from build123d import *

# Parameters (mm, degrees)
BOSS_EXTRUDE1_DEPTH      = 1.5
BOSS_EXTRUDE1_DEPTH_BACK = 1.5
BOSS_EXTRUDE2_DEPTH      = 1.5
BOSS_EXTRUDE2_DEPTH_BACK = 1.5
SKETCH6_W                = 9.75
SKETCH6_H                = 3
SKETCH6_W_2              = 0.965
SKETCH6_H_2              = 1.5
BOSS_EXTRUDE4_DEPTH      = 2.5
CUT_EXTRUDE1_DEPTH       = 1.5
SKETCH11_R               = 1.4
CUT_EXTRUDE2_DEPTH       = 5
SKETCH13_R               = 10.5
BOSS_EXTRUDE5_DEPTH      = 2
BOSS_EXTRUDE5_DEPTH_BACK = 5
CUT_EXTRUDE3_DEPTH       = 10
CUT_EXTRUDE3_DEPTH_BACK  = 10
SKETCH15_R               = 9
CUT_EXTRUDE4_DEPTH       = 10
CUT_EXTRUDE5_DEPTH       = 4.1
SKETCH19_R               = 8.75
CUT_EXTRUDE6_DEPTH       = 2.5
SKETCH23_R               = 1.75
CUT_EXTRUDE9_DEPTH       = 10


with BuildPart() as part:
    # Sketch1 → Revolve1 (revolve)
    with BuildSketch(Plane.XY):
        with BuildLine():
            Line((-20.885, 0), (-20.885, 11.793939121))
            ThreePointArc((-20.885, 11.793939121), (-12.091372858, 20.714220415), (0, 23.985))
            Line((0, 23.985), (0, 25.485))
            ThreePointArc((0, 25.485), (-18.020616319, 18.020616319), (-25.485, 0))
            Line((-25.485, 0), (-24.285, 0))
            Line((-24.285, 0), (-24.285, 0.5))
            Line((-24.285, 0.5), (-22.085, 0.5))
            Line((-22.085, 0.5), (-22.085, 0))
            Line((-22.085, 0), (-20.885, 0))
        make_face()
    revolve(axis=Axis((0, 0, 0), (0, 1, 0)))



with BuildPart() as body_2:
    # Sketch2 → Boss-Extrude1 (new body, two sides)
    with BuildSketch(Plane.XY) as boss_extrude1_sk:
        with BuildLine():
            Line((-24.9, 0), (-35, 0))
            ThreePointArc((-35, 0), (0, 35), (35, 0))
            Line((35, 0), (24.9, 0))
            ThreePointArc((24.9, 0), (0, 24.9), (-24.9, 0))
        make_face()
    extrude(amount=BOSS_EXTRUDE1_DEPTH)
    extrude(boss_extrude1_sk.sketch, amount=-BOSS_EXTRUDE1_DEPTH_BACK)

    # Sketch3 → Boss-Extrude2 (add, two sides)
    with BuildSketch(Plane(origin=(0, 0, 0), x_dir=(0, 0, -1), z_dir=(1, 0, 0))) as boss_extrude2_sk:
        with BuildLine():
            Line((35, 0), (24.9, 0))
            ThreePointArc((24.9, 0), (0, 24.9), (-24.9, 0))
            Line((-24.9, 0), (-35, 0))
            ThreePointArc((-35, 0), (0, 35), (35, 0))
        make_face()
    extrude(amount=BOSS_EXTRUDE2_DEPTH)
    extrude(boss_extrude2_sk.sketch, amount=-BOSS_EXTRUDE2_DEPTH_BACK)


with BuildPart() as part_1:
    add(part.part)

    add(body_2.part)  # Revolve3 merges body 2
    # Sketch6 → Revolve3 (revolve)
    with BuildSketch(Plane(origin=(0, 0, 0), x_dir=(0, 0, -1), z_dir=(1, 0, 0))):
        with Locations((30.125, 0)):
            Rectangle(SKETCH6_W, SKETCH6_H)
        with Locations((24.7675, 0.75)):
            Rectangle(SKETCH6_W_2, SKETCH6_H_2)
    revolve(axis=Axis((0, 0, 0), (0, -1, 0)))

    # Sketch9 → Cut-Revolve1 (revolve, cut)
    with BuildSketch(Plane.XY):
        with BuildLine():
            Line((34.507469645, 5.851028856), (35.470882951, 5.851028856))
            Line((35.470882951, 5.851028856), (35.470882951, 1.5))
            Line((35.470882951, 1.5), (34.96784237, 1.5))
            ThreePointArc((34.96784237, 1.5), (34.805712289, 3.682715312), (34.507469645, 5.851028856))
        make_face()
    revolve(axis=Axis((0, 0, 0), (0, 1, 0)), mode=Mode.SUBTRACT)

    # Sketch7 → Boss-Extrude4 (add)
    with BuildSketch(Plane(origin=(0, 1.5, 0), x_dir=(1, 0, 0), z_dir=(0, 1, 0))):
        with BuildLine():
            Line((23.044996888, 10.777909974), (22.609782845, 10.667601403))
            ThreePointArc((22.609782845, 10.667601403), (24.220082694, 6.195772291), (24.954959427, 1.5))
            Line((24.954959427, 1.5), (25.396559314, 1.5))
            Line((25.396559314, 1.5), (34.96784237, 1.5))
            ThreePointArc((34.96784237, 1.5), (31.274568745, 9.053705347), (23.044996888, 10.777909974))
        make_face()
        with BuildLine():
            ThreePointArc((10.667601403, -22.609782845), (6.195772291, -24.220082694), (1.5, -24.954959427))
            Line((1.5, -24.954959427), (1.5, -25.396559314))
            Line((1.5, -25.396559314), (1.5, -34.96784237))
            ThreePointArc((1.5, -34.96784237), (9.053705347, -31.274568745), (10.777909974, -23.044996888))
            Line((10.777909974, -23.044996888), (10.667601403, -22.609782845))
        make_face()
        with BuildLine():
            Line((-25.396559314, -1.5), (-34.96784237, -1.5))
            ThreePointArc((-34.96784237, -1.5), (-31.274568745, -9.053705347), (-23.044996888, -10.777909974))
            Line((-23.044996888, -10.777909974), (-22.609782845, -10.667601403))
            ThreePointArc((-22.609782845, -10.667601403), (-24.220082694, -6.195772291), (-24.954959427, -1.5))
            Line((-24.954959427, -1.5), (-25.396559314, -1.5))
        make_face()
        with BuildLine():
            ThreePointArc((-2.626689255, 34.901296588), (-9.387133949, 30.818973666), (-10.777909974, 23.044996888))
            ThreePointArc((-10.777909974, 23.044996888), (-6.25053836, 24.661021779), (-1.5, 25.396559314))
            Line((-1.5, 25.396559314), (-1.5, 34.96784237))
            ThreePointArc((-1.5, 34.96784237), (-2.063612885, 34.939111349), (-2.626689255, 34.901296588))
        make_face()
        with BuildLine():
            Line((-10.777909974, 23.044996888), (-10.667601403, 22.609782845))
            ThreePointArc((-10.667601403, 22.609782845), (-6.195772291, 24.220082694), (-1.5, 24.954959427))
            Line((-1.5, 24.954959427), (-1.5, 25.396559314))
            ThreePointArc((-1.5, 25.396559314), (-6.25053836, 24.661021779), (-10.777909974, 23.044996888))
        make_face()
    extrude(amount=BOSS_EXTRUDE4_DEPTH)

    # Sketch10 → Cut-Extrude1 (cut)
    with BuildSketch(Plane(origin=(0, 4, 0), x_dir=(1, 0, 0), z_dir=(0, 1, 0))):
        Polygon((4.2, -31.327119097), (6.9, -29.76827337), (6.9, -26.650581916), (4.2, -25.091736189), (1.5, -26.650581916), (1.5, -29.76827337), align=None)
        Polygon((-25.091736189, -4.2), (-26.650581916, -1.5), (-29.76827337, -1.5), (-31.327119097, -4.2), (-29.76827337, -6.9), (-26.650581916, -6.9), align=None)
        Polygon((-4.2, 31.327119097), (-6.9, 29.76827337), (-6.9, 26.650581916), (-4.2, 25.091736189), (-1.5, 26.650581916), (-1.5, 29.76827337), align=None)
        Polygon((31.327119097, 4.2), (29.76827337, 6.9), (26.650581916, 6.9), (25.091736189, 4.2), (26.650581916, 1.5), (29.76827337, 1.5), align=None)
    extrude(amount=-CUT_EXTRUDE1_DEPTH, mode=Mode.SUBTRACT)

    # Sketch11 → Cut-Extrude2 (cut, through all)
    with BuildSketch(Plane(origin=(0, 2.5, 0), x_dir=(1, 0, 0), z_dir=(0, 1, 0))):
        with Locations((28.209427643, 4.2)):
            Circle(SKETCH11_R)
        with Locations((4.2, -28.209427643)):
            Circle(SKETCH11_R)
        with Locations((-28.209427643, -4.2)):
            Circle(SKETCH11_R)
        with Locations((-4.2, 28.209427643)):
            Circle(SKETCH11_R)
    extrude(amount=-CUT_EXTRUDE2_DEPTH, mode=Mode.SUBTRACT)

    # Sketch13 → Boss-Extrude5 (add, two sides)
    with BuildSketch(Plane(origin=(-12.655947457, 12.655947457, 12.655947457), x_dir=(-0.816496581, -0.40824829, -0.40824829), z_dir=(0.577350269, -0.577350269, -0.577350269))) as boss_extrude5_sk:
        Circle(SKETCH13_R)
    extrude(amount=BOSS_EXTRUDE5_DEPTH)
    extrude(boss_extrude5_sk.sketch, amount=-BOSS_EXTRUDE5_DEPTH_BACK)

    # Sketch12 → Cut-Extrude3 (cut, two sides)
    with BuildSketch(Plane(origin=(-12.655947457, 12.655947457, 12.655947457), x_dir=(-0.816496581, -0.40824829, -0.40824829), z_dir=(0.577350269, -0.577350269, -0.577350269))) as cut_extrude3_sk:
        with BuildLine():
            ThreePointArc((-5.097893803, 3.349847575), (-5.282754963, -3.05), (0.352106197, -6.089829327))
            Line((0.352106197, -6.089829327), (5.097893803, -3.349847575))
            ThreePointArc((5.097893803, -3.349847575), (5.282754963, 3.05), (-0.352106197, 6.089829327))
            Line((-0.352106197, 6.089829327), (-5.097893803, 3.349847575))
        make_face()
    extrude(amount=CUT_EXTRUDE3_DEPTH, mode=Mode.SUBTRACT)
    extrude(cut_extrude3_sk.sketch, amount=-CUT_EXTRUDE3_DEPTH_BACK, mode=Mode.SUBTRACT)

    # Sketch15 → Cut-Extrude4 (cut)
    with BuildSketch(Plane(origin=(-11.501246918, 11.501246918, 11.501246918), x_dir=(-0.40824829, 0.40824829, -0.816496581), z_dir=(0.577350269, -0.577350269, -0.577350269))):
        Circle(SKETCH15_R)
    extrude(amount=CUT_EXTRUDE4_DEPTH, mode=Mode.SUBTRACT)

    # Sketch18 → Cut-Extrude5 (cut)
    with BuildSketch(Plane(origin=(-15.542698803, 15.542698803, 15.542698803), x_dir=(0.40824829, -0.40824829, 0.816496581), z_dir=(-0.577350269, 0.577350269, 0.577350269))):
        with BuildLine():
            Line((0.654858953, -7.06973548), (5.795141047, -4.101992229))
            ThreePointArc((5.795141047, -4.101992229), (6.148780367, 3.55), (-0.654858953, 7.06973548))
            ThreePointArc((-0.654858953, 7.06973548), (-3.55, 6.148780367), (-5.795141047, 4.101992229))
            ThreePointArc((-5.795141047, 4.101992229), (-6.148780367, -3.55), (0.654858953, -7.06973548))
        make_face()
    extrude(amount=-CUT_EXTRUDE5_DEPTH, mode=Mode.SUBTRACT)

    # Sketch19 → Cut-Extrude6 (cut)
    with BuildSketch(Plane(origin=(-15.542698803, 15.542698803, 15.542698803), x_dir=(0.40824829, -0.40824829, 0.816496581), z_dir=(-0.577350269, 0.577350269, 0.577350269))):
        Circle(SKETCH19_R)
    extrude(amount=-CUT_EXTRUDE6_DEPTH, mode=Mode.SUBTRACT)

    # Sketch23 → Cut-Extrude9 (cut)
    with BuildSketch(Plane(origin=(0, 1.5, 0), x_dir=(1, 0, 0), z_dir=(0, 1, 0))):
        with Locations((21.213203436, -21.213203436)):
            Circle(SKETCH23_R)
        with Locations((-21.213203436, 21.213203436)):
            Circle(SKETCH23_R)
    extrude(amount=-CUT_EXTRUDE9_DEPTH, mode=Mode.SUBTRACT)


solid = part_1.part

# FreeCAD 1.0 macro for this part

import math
import FreeCAD as App
import Part
import Sketcher
Q = App.Units.Quantity

doc = App.newDocument("Part")
params = doc.addObject("Spreadsheet::Sheet", "Params")
for row, (alias, value) in enumerate([
    ("sketch1_width", "1.2 mm"),
    ("sketch1_width2", "2.2 mm"),
    ("sketch1_height", "1.5 mm"),
    ("sketch1_height2", "0.5 mm"),
    ("revolution_angle", "360 deg"),
    ("sketch2_radius", "35 mm"),
    ("sketch2_radius2", "24.9 mm"),
    ("pad1_length", "1.5 mm"),
    ("pad1_length2", "1.5 mm"),
    ("sketch3_radius", "35 mm"),
    ("sketch3_radius2", "24.9 mm"),
    ("pad2_length", "1.5 mm"),
    ("pad2_length2", "1.5 mm"),
    ("sketch4_width", "3 mm"),
    ("sketch4_height", "9.75 mm"),
    ("revolution2_angle", "360 deg"),
    ("sketch5_radius", "35 mm"),
    ("groove_angle", "360 deg"),
    ("sketch6_radius", "25 mm"),
    ("sketch6_radius2", "34.999999 mm"),
    ("pad3_length", "2.5 mm"),
    ("pocket1_length", "1.5 mm"),
    ("sketch8_diameter", "2.8 mm"),
    ("sketch9_diameter", "21 mm"),
    ("pad4_length", "2 mm"),
    ("pad4_length2", "5 mm"),
    ("sketch10_radius", "6.1 mm"),
    ("sketch11_diameter", "18 mm"),
    ("pocket4_length", "10 mm"),
    ("sketch12_radius", "7.1 mm"),
    ("pocket5_length", "4.1 mm"),
    ("sketch13_diameter", "17.5 mm"),
    ("pocket6_length", "2.5 mm"),
    ("sketch14_diameter", "3.5 mm"),
    ("pocket7_length", "10 mm"),
], start=1):
    params.set(f"A{row}", alias)
    params.set(f"B{row}", "=" + value)
    params.setAlias(f"B{row}", alias)

body = doc.addObject("PartDesign::Body", "Body")

# Sketch on XY plane
sketch1 = body.newObject("Sketcher::SketchObject", "Sketch")
sketch1.AttachmentSupport = (doc.getObject("XY_Plane"), [""])
sketch1.MapMode = "FlatFace"
sketch1.addGeometry([
    Part.LineSegment(App.Vector(-20.885, 0, 0), App.Vector(-20.885, 11.793939, 0)),  # 0
    Part.ArcOfCircle(Part.Circle(App.Vector(0, 0, 0), App.Vector(0, 0, 1), 23.985), math.radians(90), math.radians(150.546209)),  # 1
    Part.LineSegment(App.Vector(0, 23.985, 0), App.Vector(0, 25.485, 0)),  # 2
    Part.ArcOfCircle(Part.Circle(App.Vector(0, 0, 0), App.Vector(0, 0, 1), 25.485), math.radians(90), math.radians(180)),  # 3
    Part.LineSegment(App.Vector(-25.485, 0, 0), App.Vector(-24.285, 0, 0)),  # 4
    Part.LineSegment(App.Vector(-24.285, 0, 0), App.Vector(-24.285, 0.5, 0)),  # 5
    Part.LineSegment(App.Vector(-24.285, 0.5, 0), App.Vector(-22.085, 0.5, 0)),  # 6
    Part.LineSegment(App.Vector(-22.085, 0.5, 0), App.Vector(-22.085, 0, 0)),  # 7
    Part.LineSegment(App.Vector(-22.085, 0, 0), App.Vector(-20.885, 0, 0)),  # 8
], False)
sketch1.addConstraint([
    Sketcher.Constraint("Coincident", 0, 2, 1, 2),
    Sketcher.Constraint("Coincident", 1, 1, 2, 1),
    Sketcher.Constraint("Coincident", 2, 2, 3, 1),
    Sketcher.Constraint("Coincident", 3, 2, 4, 1),
    Sketcher.Constraint("Coincident", 4, 2, 5, 1),
    Sketcher.Constraint("Coincident", 5, 2, 6, 1),
    Sketcher.Constraint("Coincident", 6, 2, 7, 1),
    Sketcher.Constraint("Coincident", 7, 2, 8, 1),
    Sketcher.Constraint("Coincident", 8, 2, 0, 1),
    Sketcher.Constraint("Vertical", 0),
    Sketcher.Constraint("Vertical", 2),
    Sketcher.Constraint("Horizontal", 4),
    Sketcher.Constraint("Vertical", 5),
    Sketcher.Constraint("Horizontal", 6),
    Sketcher.Constraint("Vertical", 7),
    Sketcher.Constraint("Horizontal", 8),
    Sketcher.Constraint("Coincident", 1, 3, -1, 1),
    Sketcher.Constraint("Coincident", 3, 3, -1, 1),
    Sketcher.Constraint("PointOnObject", 1, 1, -2),
    Sketcher.Constraint("PointOnObject", 3, 2, -1),
    Sketcher.Constraint("PointOnObject", 7, 2, -1),
    Sketcher.Constraint("Equal", 4, 8),
    Sketcher.Constraint("DistanceX", 4, 1, 4, 2, 1.2),
    Sketcher.Constraint("DistanceX", 6, 1, 6, 2, 2.2),
    Sketcher.Constraint("DistanceY", 2, 1, 2, 2, 1.5),
    Sketcher.Constraint("DistanceY", 5, 1, 5, 2, 0.5),
    Sketcher.Constraint("Radius", 1, 23.985),
])
sketch1.setExpression("Constraints[22]", "Params.sketch1_width")
sketch1.setExpression("Constraints[23]", "Params.sketch1_width2")
sketch1.setExpression("Constraints[24]", "Params.sketch1_height")
sketch1.setExpression("Constraints[25]", "Params.sketch1_height2")
revolution = body.newObject("PartDesign::Revolution", "Revolution")
revolution.Profile = sketch1
revolution.ReferenceAxis = (sketch1, ["V_Axis"])
revolution.setExpression("Angle", "Params.revolution_angle")
body2 = doc.addObject("PartDesign::Body", "Body001")

# Sketch on XY plane
sketch2 = body2.newObject("Sketcher::SketchObject", "Sketch001")
sketch2.AttachmentSupport = (doc.getObject("XY_Plane001"), [""])
sketch2.MapMode = "FlatFace"
sketch2.addGeometry([
    Part.LineSegment(App.Vector(-35, 0, 0), App.Vector(-24.9, 0, 0)),
    Part.ArcOfCircle(Part.Circle(App.Vector(0, 0, 0), App.Vector(0, 0, 1), 24.9), math.radians(0), math.radians(180)),
    Part.LineSegment(App.Vector(24.9, 0, 0), App.Vector(35, 0, 0)),
    Part.ArcOfCircle(Part.Circle(App.Vector(0, 0, 0), App.Vector(0, 0, 1), 35), math.radians(0), math.radians(180)),
], False)
sketch2.addConstraint([
    Sketcher.Constraint("Coincident", 0, 2, 1, 2),
    Sketcher.Constraint("Coincident", 1, 1, 2, 1),
    Sketcher.Constraint("Coincident", 2, 2, 3, 1),
    Sketcher.Constraint("Coincident", 3, 2, 0, 1),
    Sketcher.Constraint("Horizontal", 0),
    Sketcher.Constraint("Horizontal", 2),
    Sketcher.Constraint("Coincident", 1, 3, -1, 1),
    Sketcher.Constraint("Coincident", 3, 3, -1, 1),
    Sketcher.Constraint("PointOnObject", 0, 2, -1),
    Sketcher.Constraint("PointOnObject", 1, 1, -1),
    Sketcher.Constraint("Radius", 3, 35.0),
    Sketcher.Constraint("Radius", 1, 24.9),
])
sketch2.setExpression("Constraints[10]", "Params.sketch2_radius")
sketch2.setExpression("Constraints[11]", "Params.sketch2_radius2")
pad1 = body2.newObject("PartDesign::Pad", "Pad")
pad1.Profile = sketch2
pad1.Type = "TwoLengths"
pad1.setExpression("Length", "Params.pad1_length")
pad1.setExpression("Length2", "Params.pad1_length2")

# Sketch on YZ plane
sketch3 = body2.newObject("Sketcher::SketchObject", "Sketch002")
sketch3.AttachmentSupport = (doc.getObject("YZ_Plane001"), [""])
sketch3.MapMode = "FlatFace"
sketch3.addGeometry([
    Part.LineSegment(App.Vector(0, -24.9, 0), App.Vector(0, -35, 0)),
    Part.ArcOfCircle(Part.Circle(App.Vector(0, 0, 0), App.Vector(0, 0, 1), 35), math.radians(-90), math.radians(90)),
    Part.LineSegment(App.Vector(0, 35, 0), App.Vector(0, 24.9, 0)),
    Part.ArcOfCircle(Part.Circle(App.Vector(0, 0, 0), App.Vector(0, 0, 1), 24.9), math.radians(-90), math.radians(90)),
], False)
sketch3.addConstraint([
    Sketcher.Constraint("Coincident", 0, 2, 1, 1),
    Sketcher.Constraint("Coincident", 1, 2, 2, 1),
    Sketcher.Constraint("Coincident", 2, 2, 3, 2),
    Sketcher.Constraint("Coincident", 3, 1, 0, 1),
    Sketcher.Constraint("Vertical", 0),
    Sketcher.Constraint("Vertical", 2),
    Sketcher.Constraint("Coincident", 1, 3, -1, 1),
    Sketcher.Constraint("Coincident", 3, 3, -1, 1),
    Sketcher.Constraint("PointOnObject", 0, 2, -2),
    Sketcher.Constraint("PointOnObject", 1, 2, -2),
    Sketcher.Constraint("Radius", 1, 35.0),
    Sketcher.Constraint("Radius", 3, 24.9),
])
sketch3.setExpression("Constraints[10]", "Params.sketch3_radius")
sketch3.setExpression("Constraints[11]", "Params.sketch3_radius2")
pad2 = body2.newObject("PartDesign::Pad", "Pad001")
pad2.Profile = sketch3
pad2.Type = "TwoLengths"
pad2.setExpression("Length", "Params.pad2_length")
pad2.setExpression("Length2", "Params.pad2_length2")
doc.recompute()

boolean = body.newObject("PartDesign::Boolean", "Boolean")
boolean.Type = "Fuse"
boolean.addObjects([body2])

# Sketch on YZ plane
sketch4 = body.newObject("Sketcher::SketchObject", "Sketch003")
sketch4.AttachmentSupport = (doc.getObject("YZ_Plane"), [""])
sketch4.MapMode = "FlatFace"
sketch4.addGeometry([
    Part.LineSegment(App.Vector(0, -25.25, 0), App.Vector(-1.5, -25.25, 0)),  # 0
    Part.LineSegment(App.Vector(-1.5, -25.25, 0), App.Vector(-1.5, -35, 0)),  # 1
    Part.LineSegment(App.Vector(-1.5, -35, 0), App.Vector(1.5, -35, 0)),  # 2
    Part.LineSegment(App.Vector(1.5, -35, 0), App.Vector(1.5, -24.285, 0)),  # 3
    Part.LineSegment(App.Vector(1.5, -24.285, 0), App.Vector(0, -24.285, 0)),  # 4
    Part.LineSegment(App.Vector(0, -24.285, 0), App.Vector(0, -25.25, 0)),  # 5
], False)
sketch4.addConstraint([
    Sketcher.Constraint("Coincident", 0, 2, 1, 1),
    Sketcher.Constraint("Coincident", 1, 2, 2, 1),
    Sketcher.Constraint("Coincident", 2, 2, 3, 1),
    Sketcher.Constraint("Coincident", 3, 2, 4, 1),
    Sketcher.Constraint("Coincident", 4, 2, 5, 1),
    Sketcher.Constraint("Coincident", 5, 2, 0, 1),
    Sketcher.Constraint("Horizontal", 0),
    Sketcher.Constraint("Vertical", 1),
    Sketcher.Constraint("Horizontal", 2),
    Sketcher.Constraint("Vertical", 3),
    Sketcher.Constraint("Horizontal", 4),
    Sketcher.Constraint("Vertical", 5),
    Sketcher.Constraint("PointOnObject", 4, 2, -2),
    Sketcher.Constraint("Equal", 0, 4),
    Sketcher.Constraint("DistanceX", 2, 1, 2, 2, 3.0),
    Sketcher.Constraint("DistanceY", 1, 2, -1, 1, 35.0),
    Sketcher.Constraint("DistanceY", 1, 2, 1, 1, 9.75),
    Sketcher.Constraint("DistanceY", 3, 1, 3, 2, 10.715),
])
sketch4.setExpression("Constraints[14]", "Params.sketch4_width")
sketch4.setExpression("Constraints[16]", "Params.sketch4_height")
revolution2 = body.newObject("PartDesign::Revolution", "Revolution001")
revolution2.Profile = sketch4
revolution2.ReferenceAxis = (sketch4, ["H_Axis"])
revolution2.setExpression("Angle", "Params.revolution2_angle")

# Sketch on XY plane
sketch5 = body.newObject("Sketcher::SketchObject", "Sketch004")
sketch5.AttachmentSupport = (doc.getObject("XY_Plane"), [""])
sketch5.MapMode = "FlatFace"
sketch5.addGeometry([
    Part.LineSegment(App.Vector(35.470883, 5.851029, 0), App.Vector(34.50747, 5.851029, 0)),
    Part.ArcOfCircle(Part.Circle(App.Vector(0, 0, 0), App.Vector(0, 0, 1), 35), math.radians(2.456286), math.radians(9.623448)),
    Part.LineSegment(App.Vector(34.967842, 1.5, 0), App.Vector(35.470883, 1.5, 0)),
    Part.LineSegment(App.Vector(35.470883, 1.5, 0), App.Vector(35.470883, 5.851029, 0)),
], False)
sketch5.addConstraint([
    Sketcher.Constraint("Coincident", 0, 2, 1, 2),
    Sketcher.Constraint("Coincident", 1, 1, 2, 1),
    Sketcher.Constraint("Coincident", 2, 2, 3, 1),
    Sketcher.Constraint("Coincident", 3, 2, 0, 1),
    Sketcher.Constraint("Horizontal", 0),
    Sketcher.Constraint("Horizontal", 2),
    Sketcher.Constraint("Vertical", 3),
    Sketcher.Constraint("Coincident", 1, 3, -1, 1),
    Sketcher.Constraint("Radius", 1, 35.0),
    Sketcher.Constraint("DistanceY", -1, 1, 1, 1, 1.5),
    Sketcher.Constraint("DistanceX", 2, 1, 2, 2, 0.503041),
    Sketcher.Constraint("DistanceY", 3, 1, 3, 2, 4.351029),
])
sketch5.setExpression("Constraints[8]", "Params.sketch5_radius")
groove = body.newObject("PartDesign::Groove", "Groove")
groove.Profile = sketch5
groove.ReferenceAxis = (sketch5, ["V_Axis"])
groove.setExpression("Angle", "Params.groove_angle")

# Sketch on XZ plane
sketch6 = body.newObject("Sketcher::SketchObject", "Sketch005")
sketch6.AttachmentSupport = (doc.getObject("XZ_Plane"), [""])
sketch6.MapMode = "FlatFace"
sketch6.AttachmentOffset = App.Placement(App.Vector(0, 0, -1.5), App.Rotation())
sketch6.addGeometry([
    Part.LineSegment(App.Vector(23.044997, -10.77791, 0), App.Vector(22.609783, -10.667601, 0)),  # 0
    Part.ArcOfCircle(Part.Circle(App.Vector(0, 0, 0), App.Vector(0, 0, 1), 25), math.radians(-25.258572), math.radians(-3.439813)),  # 1
    Part.LineSegment(App.Vector(24.954959, -1.5, 0), App.Vector(34.967842, -1.5, 0)),  # 2
    Part.ArcOfCircle(Part.Circle(App.Vector(25.396559, -1.5, 0), App.Vector(0, 0, 1), 9.571283), math.radians(-104.222577), math.radians(0)),  # 3
    Part.ArcOfCircle(Part.Circle(App.Vector(0, 0, 0), App.Vector(0, 0, 1), 25), math.radians(64.741428), math.radians(86.560187)),  # 4
    Part.LineSegment(App.Vector(1.5, 24.954959, 0), App.Vector(1.5, 34.967842, 0)),  # 5
    Part.ArcOfCircle(Part.Circle(App.Vector(1.5, 25.396559, 0), App.Vector(0, 0, 1), 9.571283), math.radians(-14.222577), math.radians(90)),  # 6
    Part.LineSegment(App.Vector(10.77791, 23.044997, 0), App.Vector(10.667601, 22.609783, 0)),  # 7
    Part.ArcOfCircle(Part.Circle(App.Vector(-25.396559, 1.5, 0), App.Vector(0, 0, 1), 9.571283), math.radians(75.777423), math.radians(180)),  # 8
    Part.LineSegment(App.Vector(-23.044997, 10.77791, 0), App.Vector(-22.609783, 10.667601, 0)),  # 9
    Part.ArcOfCircle(Part.Circle(App.Vector(0, 0, 0), App.Vector(0, 0, 1), 25), math.radians(154.741428), math.radians(176.560187)),  # 10
    Part.LineSegment(App.Vector(-24.954959, 1.5, 0), App.Vector(-34.967842, 1.5, 0)),  # 11
    Part.ArcOfCircle(Part.Circle(App.Vector(-1.5, -25.396559, 0), App.Vector(0, 0, 1), 9.571283), math.radians(165.777423), math.radians(263.239719)),  # 12
    Part.LineSegment(App.Vector(-10.77791, -23.044997, 0), App.Vector(-10.667601, -22.609783, 0)),  # 13
    Part.ArcOfCircle(Part.Circle(App.Vector(0, 0, 0), App.Vector(0, 0, 1), 25), math.radians(-115.258572), math.radians(-93.439813)),  # 14
    Part.LineSegment(App.Vector(-1.5, -24.954959, 0), App.Vector(-1.5, -34.967842, 0)),  # 15
    Part.ArcOfCircle(Part.Circle(App.Vector(0, -0.000001, 0), App.Vector(0, 0, 1), 34.999999), math.radians(-94.303996), math.radians(-92.456286)),  # 16
], False)
sketch6.addConstraint([
    Sketcher.Constraint("Coincident", 0, 2, 1, 1),
    Sketcher.Constraint("Coincident", 1, 2, 2, 1),
    Sketcher.Constraint("Coincident", 2, 2, 3, 2),
    Sketcher.Constraint("Tangent", 3, 1, 0, 1),
    Sketcher.Constraint("Coincident", 4, 2, 5, 1),
    Sketcher.Constraint("Coincident", 5, 2, 6, 2),
    Sketcher.Constraint("Tangent", 6, 1, 7, 1),
    Sketcher.Constraint("Coincident", 7, 2, 4, 1),
    Sketcher.Constraint("Tangent", 8, 1, 9, 1),
    Sketcher.Constraint("Coincident", 9, 2, 10, 1),
    Sketcher.Constraint("Coincident", 10, 2, 11, 1),
    Sketcher.Constraint("Coincident", 11, 2, 8, 2),
    Sketcher.Constraint("Tangent", 12, 1, 13, 1),
    Sketcher.Constraint("Coincident", 13, 2, 14, 1),
    Sketcher.Constraint("Coincident", 14, 2, 15, 1),
    Sketcher.Constraint("Coincident", 15, 2, 16, 2),
    Sketcher.Constraint("Coincident", 16, 1, 12, 2),
    Sketcher.Constraint("Horizontal", 2),
    Sketcher.Constraint("Vertical", 5),
    Sketcher.Constraint("Horizontal", 11),
    Sketcher.Constraint("Vertical", 15),
    Sketcher.Constraint("Coincident", 1, 3, -1, 1),
    Sketcher.Constraint("Coincident", 4, 3, -1, 1),
    Sketcher.Constraint("Coincident", 10, 3, -1, 1),
    Sketcher.Constraint("Coincident", 14, 3, -1, 1),
    Sketcher.Constraint("Coincident", 16, 3, -1, 1),
    Sketcher.Constraint("Equal", 1, 4),
    Sketcher.Constraint("Equal", 3, 6),
    Sketcher.Constraint("Equal", 6, 8),
    Sketcher.Constraint("Equal", 4, 10),
    Sketcher.Constraint("Equal", 8, 12),
    Sketcher.Constraint("Equal", 10, 14),
    Sketcher.Constraint("Symmetric", 3, 3, 8, 3, -1, 1),
    Sketcher.Constraint("Symmetric", 6, 3, 12, 3, -1, 1),
    Sketcher.Constraint("Symmetric", 5, 2, 15, 2, -1, 1),
    Sketcher.Constraint("Perpendicular", 0, 7),
    Sketcher.Constraint("Perpendicular", 7, 9),
    Sketcher.Constraint("Perpendicular", 9, 13),
    Sketcher.Constraint("Horizontal", 3, 3, 1, 2),
    Sketcher.Constraint("Horizontal", 8, 3, 10, 2),
    Sketcher.Constraint("Vertical", 6, 3, 4, 2),
    Sketcher.Constraint("Equal", 11, 5),
    Sketcher.Constraint("Equal", 0, 7),
    Sketcher.Constraint("Radius", 1, 25.0),
    Sketcher.Constraint("Radius", 16, 34.999999),
    Sketcher.Constraint("DistanceY", 3, 3, 8, 3, 3.0),
    Sketcher.Constraint("Radius", 3, 9.571283),
    Sketcher.Constraint("DistanceY", 0, 2, -1, 1, 10.667601),
])
sketch6.setExpression("Constraints[43]", "Params.sketch6_radius")
sketch6.setExpression("Constraints[44]", "Params.sketch6_radius2")
pad3 = body.newObject("PartDesign::Pad", "Pad002")
pad3.Profile = sketch6
pad3.setExpression("Length", "Params.pad3_length")
pad3.Reversed = True

# Sketch on XZ plane
sketch7 = body.newObject("Sketcher::SketchObject", "Sketch006")
sketch7.AttachmentSupport = (doc.getObject("XZ_Plane"), [""])
sketch7.MapMode = "FlatFace"
sketch7.AttachmentOffset = App.Placement(App.Vector(0, 0, -4), App.Rotation())
sketch7.addGeometry([
    Part.LineSegment(App.Vector(4.2, 31.327119, 0), App.Vector(6.9, 29.768273, 0)),  # 0
    Part.LineSegment(App.Vector(6.9, 29.768273, 0), App.Vector(6.9, 26.650582, 0)),  # 1
    Part.LineSegment(App.Vector(6.9, 26.650582, 0), App.Vector(4.2, 25.091736, 0)),  # 2
    Part.LineSegment(App.Vector(4.2, 25.091736, 0), App.Vector(1.5, 26.650582, 0)),  # 3
    Part.LineSegment(App.Vector(1.5, 26.650582, 0), App.Vector(1.5, 29.768273, 0)),  # 4
    Part.LineSegment(App.Vector(1.5, 29.768273, 0), App.Vector(4.2, 31.327119, 0)),  # 5
    Part.LineSegment(App.Vector(-25.091736, 4.2, 0), App.Vector(-26.650582, 1.5, 0)),  # 6
    Part.LineSegment(App.Vector(-26.650582, 1.5, 0), App.Vector(-29.768273, 1.5, 0)),  # 7
    Part.LineSegment(App.Vector(-29.768273, 1.5, 0), App.Vector(-31.327119, 4.2, 0)),  # 8
    Part.LineSegment(App.Vector(-31.327119, 4.2, 0), App.Vector(-29.768273, 6.9, 0)),  # 9
    Part.LineSegment(App.Vector(-29.768273, 6.9, 0), App.Vector(-26.650582, 6.9, 0)),  # 10
    Part.LineSegment(App.Vector(-26.650582, 6.9, 0), App.Vector(-25.091736, 4.2, 0)),  # 11
    Part.LineSegment(App.Vector(-4.2, -31.327119, 0), App.Vector(-6.9, -29.768273, 0)),  # 12
    Part.LineSegment(App.Vector(-6.9, -29.768273, 0), App.Vector(-6.9, -26.650582, 0)),  # 13
    Part.LineSegment(App.Vector(-6.9, -26.650582, 0), App.Vector(-4.2, -25.091736, 0)),  # 14
    Part.LineSegment(App.Vector(-4.2, -25.091736, 0), App.Vector(-1.5, -26.650582, 0)),  # 15
    Part.LineSegment(App.Vector(-1.5, -26.650582, 0), App.Vector(-1.5, -29.768273, 0)),  # 16
    Part.LineSegment(App.Vector(-1.5, -29.768273, 0), App.Vector(-4.2, -31.327119, 0)),  # 17
    Part.LineSegment(App.Vector(31.327119, -4.2, 0), App.Vector(29.768273, -6.9, 0)),  # 18
    Part.LineSegment(App.Vector(29.768273, -6.9, 0), App.Vector(26.650582, -6.9, 0)),  # 19
    Part.LineSegment(App.Vector(26.650582, -6.9, 0), App.Vector(25.091736, -4.2, 0)),  # 20
    Part.LineSegment(App.Vector(25.091736, -4.2, 0), App.Vector(26.650582, -1.5, 0)),  # 21
    Part.LineSegment(App.Vector(26.650582, -1.5, 0), App.Vector(29.768273, -1.5, 0)),  # 22
    Part.LineSegment(App.Vector(29.768273, -1.5, 0), App.Vector(31.327119, -4.2, 0)),  # 23
], False)
sketch7.addConstraint([
    Sketcher.Constraint("Coincident", 0, 2, 1, 1),
    Sketcher.Constraint("Coincident", 1, 2, 2, 1),
    Sketcher.Constraint("Coincident", 2, 2, 3, 1),
    Sketcher.Constraint("Coincident", 3, 2, 4, 1),
    Sketcher.Constraint("Coincident", 4, 2, 5, 1),
    Sketcher.Constraint("Coincident", 5, 2, 0, 1),
    Sketcher.Constraint("Coincident", 6, 2, 7, 1),
    Sketcher.Constraint("Coincident", 7, 2, 8, 1),
    Sketcher.Constraint("Coincident", 8, 2, 9, 1),
    Sketcher.Constraint("Coincident", 9, 2, 10, 1),
    Sketcher.Constraint("Coincident", 10, 2, 11, 1),
    Sketcher.Constraint("Coincident", 11, 2, 6, 1),
    Sketcher.Constraint("Coincident", 12, 2, 13, 1),
    Sketcher.Constraint("Coincident", 13, 2, 14, 1),
    Sketcher.Constraint("Coincident", 14, 2, 15, 1),
    Sketcher.Constraint("Coincident", 15, 2, 16, 1),
    Sketcher.Constraint("Coincident", 16, 2, 17, 1),
    Sketcher.Constraint("Coincident", 17, 2, 12, 1),
    Sketcher.Constraint("Coincident", 18, 2, 19, 1),
    Sketcher.Constraint("Coincident", 19, 2, 20, 1),
    Sketcher.Constraint("Coincident", 20, 2, 21, 1),
    Sketcher.Constraint("Coincident", 21, 2, 22, 1),
    Sketcher.Constraint("Coincident", 22, 2, 23, 1),
    Sketcher.Constraint("Coincident", 23, 2, 18, 1),
    Sketcher.Constraint("Vertical", 1),
    Sketcher.Constraint("Vertical", 4),
    Sketcher.Constraint("Horizontal", 7),
    Sketcher.Constraint("Horizontal", 10),
    Sketcher.Constraint("Vertical", 13),
    Sketcher.Constraint("Vertical", 16),
    Sketcher.Constraint("Horizontal", 19),
    Sketcher.Constraint("Horizontal", 22),
    Sketcher.Constraint("Symmetric", 0, 2, 12, 2, -1, 1),
    Sketcher.Constraint("Symmetric", 2, 2, 14, 2, -1, 1),
    Sketcher.Constraint("Symmetric", 3, 2, 15, 2, -1, 1),
    Sketcher.Constraint("Symmetric", 5, 2, 17, 2, -1, 1),
    Sketcher.Constraint("Symmetric", 9, 2, 18, 2, -1, 1),
    Sketcher.Constraint("Symmetric", 11, 2, 20, 2, -1, 1),
    Sketcher.Constraint("Symmetric", 6, 2, 21, 2, -1, 1),
    Sketcher.Constraint("Symmetric", 8, 2, 23, 2, -1, 1),
    Sketcher.Constraint("Parallel", 0, 3),
    Sketcher.Constraint("Parallel", 2, 5),
    Sketcher.Constraint("Perpendicular", 3, 6),
    Sketcher.Constraint("Perpendicular", 5, 8),
    Sketcher.Constraint("Parallel", 6, 9),
    Sketcher.Constraint("Parallel", 8, 11),
    Sketcher.Constraint("Perpendicular", 11, 14),
    Sketcher.Constraint("Parallel", 14, 17),
    Sketcher.Constraint("Perpendicular", 17, 20),
    Sketcher.Constraint("Parallel", 20, 23),
    Sketcher.Constraint("Horizontal", 1, 2, 3, 2),
    Sketcher.Constraint("Horizontal", 0, 2, 4, 2),
    Sketcher.Constraint("Horizontal", 8, 2, 11, 2),
    Sketcher.Constraint("Vertical", 2, 2, 5, 2),
    Sketcher.Constraint("Vertical", 7, 2, 9, 2),
    Sketcher.Constraint("Equal", 22, 1),
    Sketcher.Constraint("Equal", 5, 6),
    Sketcher.Constraint("Angle", 0, Q("-30 deg")),
    Sketcher.Constraint("DistanceX", -1, 1, 0, 2, 6.9),
    Sketcher.Constraint("DistanceX", -1, 1, 2, 2, 4.2),
    Sketcher.Constraint("DistanceY", -1, 1, 6, 2, 1.5),
    Sketcher.Constraint("DistanceX", 7, 2, 7, 1, 3.117691),
    Sketcher.Constraint("DistanceY", -1, 1, 1, 2, 26.650582),
    Sketcher.Constraint("DistanceX", 6, 2, -1, 1, 26.650582),
])
pocket1 = body.newObject("PartDesign::Pocket", "Pocket")
pocket1.Profile = sketch7
pocket1.setExpression("Length", "Params.pocket1_length")
pocket1.Reversed = True

# Sketch on XZ plane
sketch8 = body.newObject("Sketcher::SketchObject", "Sketch007")
sketch8.AttachmentSupport = (doc.getObject("XZ_Plane"), [""])
sketch8.MapMode = "FlatFace"
sketch8.AttachmentOffset = App.Placement(App.Vector(0, 0, -2.5), App.Rotation())
sketch8.addGeometry([
    Part.Circle(App.Vector(28.209428, -4.2, 0), App.Vector(0, 0, 1), 1.4),
    Part.Circle(App.Vector(4.2, 28.209428, 0), App.Vector(0, 0, 1), 1.4),
    Part.Circle(App.Vector(-28.209428, 4.2, 0), App.Vector(0, 0, 1), 1.4),
    Part.Circle(App.Vector(-4.2, -28.209428, 0), App.Vector(0, 0, 1), 1.4),
], False)
sketch8.addConstraint([
    Sketcher.Constraint("Equal", 0, 1),
    Sketcher.Constraint("Equal", 1, 2),
    Sketcher.Constraint("Equal", 2, 3),
    Sketcher.Constraint("Symmetric", 0, 3, 2, 3, -1, 1),
    Sketcher.Constraint("Symmetric", 1, 3, 3, 3, -1, 1),
    Sketcher.Constraint("Diameter", 0, 2.8),
    Sketcher.Constraint("DistanceY", 0, 3, -1, 1, 4.2),
    Sketcher.Constraint("DistanceX", -1, 1, 1, 3, 4.2),
    Sketcher.Constraint("DistanceX", -1, 1, 0, 3, 28.209428),
    Sketcher.Constraint("DistanceY", -1, 1, 1, 3, 28.209428),
])
sketch8.setExpression("Constraints[5]", "Params.sketch8_diameter")
pocket2 = body.newObject("PartDesign::Pocket", "Pocket001")
pocket2.Profile = sketch8
pocket2.Type = "ThroughAll"
pocket2.Reversed = True

# Sketch on an angled plane
sketch9 = body.newObject("Sketcher::SketchObject", "Sketch008")
sketch9.Placement = App.Placement(App.Vector(-12.655947, 12.655947, 12.655947), App.Rotation(App.Vector(-0.816496581, -0.40824829, -0.40824829), App.Vector(0, 0.707106781, -0.707106781), App.Vector(0.577350269, -0.577350269, -0.577350269), "ZXY"))
sketch9.addGeometry(Part.Circle(App.Vector(0, 0, 0), App.Vector(0, 0, 1), 10.5), False)
sketch9.addConstraint([
    Sketcher.Constraint("Coincident", 0, 3, -1, 1),
    Sketcher.Constraint("Diameter", 0, 21.0),
])
sketch9.setExpression("Constraints[1]", "Params.sketch9_diameter")
pad4 = body.newObject("PartDesign::Pad", "Pad003")
pad4.Profile = sketch9
pad4.Type = "TwoLengths"
pad4.setExpression("Length", "Params.pad4_length")
pad4.setExpression("Length2", "Params.pad4_length2")

# Sketch on an angled plane
sketch10 = body.newObject("Sketcher::SketchObject", "Sketch009")
sketch10.Placement = App.Placement(App.Vector(-12.655947, 12.655947, 12.655947), App.Rotation(App.Vector(-0.816496581, -0.40824829, -0.40824829), App.Vector(0, 0.707106781, -0.707106781), App.Vector(0.577350269, -0.577350269, -0.577350269), "ZXY"))
sketch10.addGeometry([
    Part.ArcOfCircle(Part.Circle(App.Vector(0, 0, 0), App.Vector(0, 0, 1), 6.1), math.radians(146.690915), math.radians(273.309085)),
    Part.LineSegment(App.Vector(0.352106, -6.089829, 0), App.Vector(5.097894, -3.349848, 0)),
    Part.ArcOfCircle(Part.Circle(App.Vector(0, 0, 0), App.Vector(0, 0, 1), 6.1), math.radians(-33.309085), math.radians(93.309085)),
    Part.LineSegment(App.Vector(-0.352106, 6.089829, 0), App.Vector(-5.097894, 3.349848, 0)),
], False)
sketch10.addConstraint([
    Sketcher.Constraint("Coincident", 0, 2, 1, 1),
    Sketcher.Constraint("Coincident", 1, 2, 2, 1),
    Sketcher.Constraint("Coincident", 2, 2, 3, 1),
    Sketcher.Constraint("Coincident", 3, 2, 0, 1),
    Sketcher.Constraint("Coincident", 0, 3, -1, 1),
    Sketcher.Constraint("Coincident", 2, 3, -1, 1),
    Sketcher.Constraint("Equal", 0, 2),
    Sketcher.Constraint("Parallel", 1, 3),
    Sketcher.Constraint("Equal", 1, 3),
    Sketcher.Constraint("Radius", 0, 6.1),
    Sketcher.Constraint("Angle", 1, Q("30 deg")),
    Sketcher.Constraint("DistanceX", 2, 2, 1, 2, 5.45),
])
sketch10.setExpression("Constraints[9]", "Params.sketch10_radius")
pocket3 = body.newObject("PartDesign::Pocket", "Pocket002")
pocket3.Profile = sketch10
pocket3.Type = "ThroughAll"
pocket3.Midplane = True

# Sketch on an angled plane
sketch11 = body.newObject("Sketcher::SketchObject", "Sketch010")
sketch11.Placement = App.Placement(App.Vector(-11.501247, 11.501247, 11.501247), App.Rotation(App.Vector(-0.40824829, 0.40824829, -0.816496581), App.Vector(0.707106781, 0.707106781, 0), App.Vector(0.577350269, -0.577350269, -0.577350269), "ZXY"))
sketch11.addGeometry(Part.Circle(App.Vector(0, 0, 0), App.Vector(0, 0, 1), 9), False)
sketch11.addConstraint([
    Sketcher.Constraint("Coincident", 0, 3, -1, 1),
    Sketcher.Constraint("Diameter", 0, 18.0),
])
sketch11.setExpression("Constraints[1]", "Params.sketch11_diameter")
pocket4 = body.newObject("PartDesign::Pocket", "Pocket003")
pocket4.Profile = sketch11
pocket4.setExpression("Length", "Params.pocket4_length")
pocket4.Reversed = True

# Sketch on an angled plane
sketch12 = body.newObject("Sketcher::SketchObject", "Sketch011")
sketch12.Placement = App.Placement(App.Vector(-15.542699, 15.542699, 15.542699), App.Rotation(App.Vector(0.40824829, -0.40824829, 0.816496581), App.Vector(0.707106781, 0.707106781, 0), App.Vector(-0.577350269, 0.577350269, 0.577350269), "ZXY"))
sketch12.addGeometry([
    Part.LineSegment(App.Vector(0.654859, -7.069735, 0), App.Vector(5.795141, -4.101992, 0)),
    Part.ArcOfCircle(Part.Circle(App.Vector(0, 0, 0), App.Vector(0, 0, 1), 7.1), math.radians(-35.292121), math.radians(95.292121)),
    Part.ArcOfCircle(Part.Circle(App.Vector(0, 0, 0), App.Vector(0, 0, 1), 7.1), math.radians(95.292121), math.radians(144.707879)),
    Part.ArcOfCircle(Part.Circle(App.Vector(0, 0, 0), App.Vector(0, 0, 1), 7.1), math.radians(144.707879), math.radians(275.292121)),
], False)
sketch12.addConstraint([
    Sketcher.Constraint("Coincident", 0, 2, 1, 1),
    Sketcher.Constraint("Tangent", 1, 2, 2, 1),
    Sketcher.Constraint("Tangent", 2, 2, 3, 1),
    Sketcher.Constraint("Coincident", 3, 2, 0, 1),
    Sketcher.Constraint("Coincident", 1, 3, -1, 1),
    Sketcher.Constraint("Coincident", 3, 3, -1, 1),
    Sketcher.Constraint("Radius", 1, 7.1),
    Sketcher.Constraint("Angle", 0, Q("30 deg")),
    Sketcher.Constraint("DistanceX", 1, 2, 0, 2, 6.45),
    Sketcher.Constraint("DistanceX", 2, 2, 3, 2, 6.45),
    Sketcher.Constraint("DistanceX", -1, 1, 0, 2, 5.795141),
])
sketch12.setExpression("Constraints[6]", "Params.sketch12_radius")
pocket5 = body.newObject("PartDesign::Pocket", "Pocket004")
pocket5.Profile = sketch12
pocket5.setExpression("Length", "Params.pocket5_length")

# Sketch on an angled plane
sketch13 = body.newObject("Sketcher::SketchObject", "Sketch012")
sketch13.Placement = App.Placement(App.Vector(-15.542699, 15.542699, 15.542699), App.Rotation(App.Vector(0.40824829, -0.40824829, 0.816496581), App.Vector(0.707106781, 0.707106781, 0), App.Vector(-0.577350269, 0.577350269, 0.577350269), "ZXY"))
sketch13.addGeometry(Part.Circle(App.Vector(0, 0, 0), App.Vector(0, 0, 1), 8.75), False)
sketch13.addConstraint([
    Sketcher.Constraint("Coincident", 0, 3, -1, 1),
    Sketcher.Constraint("Diameter", 0, 17.5),
])
sketch13.setExpression("Constraints[1]", "Params.sketch13_diameter")
pocket6 = body.newObject("PartDesign::Pocket", "Pocket005")
pocket6.Profile = sketch13
pocket6.setExpression("Length", "Params.pocket6_length")

# Sketch on XZ plane
sketch14 = body.newObject("Sketcher::SketchObject", "Sketch013")
sketch14.AttachmentSupport = (doc.getObject("XZ_Plane"), [""])
sketch14.MapMode = "FlatFace"
sketch14.AttachmentOffset = App.Placement(App.Vector(0, 0, -1.5), App.Rotation())
sketch14.addGeometry([
    Part.Circle(App.Vector(21.213203, 21.213203, 0), App.Vector(0, 0, 1), 1.75),
    Part.Circle(App.Vector(-21.213203, -21.213203, 0), App.Vector(0, 0, 1), 1.75),
], False)
sketch14.addConstraint([
    Sketcher.Constraint("Equal", 0, 1),
    Sketcher.Constraint("Symmetric", 0, 3, 1, 3, -1, 1),
    Sketcher.Constraint("Diameter", 0, 3.5),
    Sketcher.Constraint("DistanceX", -1, 1, 0, 3, 21.213203),
    Sketcher.Constraint("DistanceY", -1, 1, 0, 3, 21.213203),
])
sketch14.setExpression("Constraints[2]", "Params.sketch14_diameter")
pocket7 = body.newObject("PartDesign::Pocket", "Pocket006")
pocket7.Profile = sketch14
pocket7.setExpression("Length", "Params.pocket7_length")
pocket7.Reversed = True

doc.recompute()
